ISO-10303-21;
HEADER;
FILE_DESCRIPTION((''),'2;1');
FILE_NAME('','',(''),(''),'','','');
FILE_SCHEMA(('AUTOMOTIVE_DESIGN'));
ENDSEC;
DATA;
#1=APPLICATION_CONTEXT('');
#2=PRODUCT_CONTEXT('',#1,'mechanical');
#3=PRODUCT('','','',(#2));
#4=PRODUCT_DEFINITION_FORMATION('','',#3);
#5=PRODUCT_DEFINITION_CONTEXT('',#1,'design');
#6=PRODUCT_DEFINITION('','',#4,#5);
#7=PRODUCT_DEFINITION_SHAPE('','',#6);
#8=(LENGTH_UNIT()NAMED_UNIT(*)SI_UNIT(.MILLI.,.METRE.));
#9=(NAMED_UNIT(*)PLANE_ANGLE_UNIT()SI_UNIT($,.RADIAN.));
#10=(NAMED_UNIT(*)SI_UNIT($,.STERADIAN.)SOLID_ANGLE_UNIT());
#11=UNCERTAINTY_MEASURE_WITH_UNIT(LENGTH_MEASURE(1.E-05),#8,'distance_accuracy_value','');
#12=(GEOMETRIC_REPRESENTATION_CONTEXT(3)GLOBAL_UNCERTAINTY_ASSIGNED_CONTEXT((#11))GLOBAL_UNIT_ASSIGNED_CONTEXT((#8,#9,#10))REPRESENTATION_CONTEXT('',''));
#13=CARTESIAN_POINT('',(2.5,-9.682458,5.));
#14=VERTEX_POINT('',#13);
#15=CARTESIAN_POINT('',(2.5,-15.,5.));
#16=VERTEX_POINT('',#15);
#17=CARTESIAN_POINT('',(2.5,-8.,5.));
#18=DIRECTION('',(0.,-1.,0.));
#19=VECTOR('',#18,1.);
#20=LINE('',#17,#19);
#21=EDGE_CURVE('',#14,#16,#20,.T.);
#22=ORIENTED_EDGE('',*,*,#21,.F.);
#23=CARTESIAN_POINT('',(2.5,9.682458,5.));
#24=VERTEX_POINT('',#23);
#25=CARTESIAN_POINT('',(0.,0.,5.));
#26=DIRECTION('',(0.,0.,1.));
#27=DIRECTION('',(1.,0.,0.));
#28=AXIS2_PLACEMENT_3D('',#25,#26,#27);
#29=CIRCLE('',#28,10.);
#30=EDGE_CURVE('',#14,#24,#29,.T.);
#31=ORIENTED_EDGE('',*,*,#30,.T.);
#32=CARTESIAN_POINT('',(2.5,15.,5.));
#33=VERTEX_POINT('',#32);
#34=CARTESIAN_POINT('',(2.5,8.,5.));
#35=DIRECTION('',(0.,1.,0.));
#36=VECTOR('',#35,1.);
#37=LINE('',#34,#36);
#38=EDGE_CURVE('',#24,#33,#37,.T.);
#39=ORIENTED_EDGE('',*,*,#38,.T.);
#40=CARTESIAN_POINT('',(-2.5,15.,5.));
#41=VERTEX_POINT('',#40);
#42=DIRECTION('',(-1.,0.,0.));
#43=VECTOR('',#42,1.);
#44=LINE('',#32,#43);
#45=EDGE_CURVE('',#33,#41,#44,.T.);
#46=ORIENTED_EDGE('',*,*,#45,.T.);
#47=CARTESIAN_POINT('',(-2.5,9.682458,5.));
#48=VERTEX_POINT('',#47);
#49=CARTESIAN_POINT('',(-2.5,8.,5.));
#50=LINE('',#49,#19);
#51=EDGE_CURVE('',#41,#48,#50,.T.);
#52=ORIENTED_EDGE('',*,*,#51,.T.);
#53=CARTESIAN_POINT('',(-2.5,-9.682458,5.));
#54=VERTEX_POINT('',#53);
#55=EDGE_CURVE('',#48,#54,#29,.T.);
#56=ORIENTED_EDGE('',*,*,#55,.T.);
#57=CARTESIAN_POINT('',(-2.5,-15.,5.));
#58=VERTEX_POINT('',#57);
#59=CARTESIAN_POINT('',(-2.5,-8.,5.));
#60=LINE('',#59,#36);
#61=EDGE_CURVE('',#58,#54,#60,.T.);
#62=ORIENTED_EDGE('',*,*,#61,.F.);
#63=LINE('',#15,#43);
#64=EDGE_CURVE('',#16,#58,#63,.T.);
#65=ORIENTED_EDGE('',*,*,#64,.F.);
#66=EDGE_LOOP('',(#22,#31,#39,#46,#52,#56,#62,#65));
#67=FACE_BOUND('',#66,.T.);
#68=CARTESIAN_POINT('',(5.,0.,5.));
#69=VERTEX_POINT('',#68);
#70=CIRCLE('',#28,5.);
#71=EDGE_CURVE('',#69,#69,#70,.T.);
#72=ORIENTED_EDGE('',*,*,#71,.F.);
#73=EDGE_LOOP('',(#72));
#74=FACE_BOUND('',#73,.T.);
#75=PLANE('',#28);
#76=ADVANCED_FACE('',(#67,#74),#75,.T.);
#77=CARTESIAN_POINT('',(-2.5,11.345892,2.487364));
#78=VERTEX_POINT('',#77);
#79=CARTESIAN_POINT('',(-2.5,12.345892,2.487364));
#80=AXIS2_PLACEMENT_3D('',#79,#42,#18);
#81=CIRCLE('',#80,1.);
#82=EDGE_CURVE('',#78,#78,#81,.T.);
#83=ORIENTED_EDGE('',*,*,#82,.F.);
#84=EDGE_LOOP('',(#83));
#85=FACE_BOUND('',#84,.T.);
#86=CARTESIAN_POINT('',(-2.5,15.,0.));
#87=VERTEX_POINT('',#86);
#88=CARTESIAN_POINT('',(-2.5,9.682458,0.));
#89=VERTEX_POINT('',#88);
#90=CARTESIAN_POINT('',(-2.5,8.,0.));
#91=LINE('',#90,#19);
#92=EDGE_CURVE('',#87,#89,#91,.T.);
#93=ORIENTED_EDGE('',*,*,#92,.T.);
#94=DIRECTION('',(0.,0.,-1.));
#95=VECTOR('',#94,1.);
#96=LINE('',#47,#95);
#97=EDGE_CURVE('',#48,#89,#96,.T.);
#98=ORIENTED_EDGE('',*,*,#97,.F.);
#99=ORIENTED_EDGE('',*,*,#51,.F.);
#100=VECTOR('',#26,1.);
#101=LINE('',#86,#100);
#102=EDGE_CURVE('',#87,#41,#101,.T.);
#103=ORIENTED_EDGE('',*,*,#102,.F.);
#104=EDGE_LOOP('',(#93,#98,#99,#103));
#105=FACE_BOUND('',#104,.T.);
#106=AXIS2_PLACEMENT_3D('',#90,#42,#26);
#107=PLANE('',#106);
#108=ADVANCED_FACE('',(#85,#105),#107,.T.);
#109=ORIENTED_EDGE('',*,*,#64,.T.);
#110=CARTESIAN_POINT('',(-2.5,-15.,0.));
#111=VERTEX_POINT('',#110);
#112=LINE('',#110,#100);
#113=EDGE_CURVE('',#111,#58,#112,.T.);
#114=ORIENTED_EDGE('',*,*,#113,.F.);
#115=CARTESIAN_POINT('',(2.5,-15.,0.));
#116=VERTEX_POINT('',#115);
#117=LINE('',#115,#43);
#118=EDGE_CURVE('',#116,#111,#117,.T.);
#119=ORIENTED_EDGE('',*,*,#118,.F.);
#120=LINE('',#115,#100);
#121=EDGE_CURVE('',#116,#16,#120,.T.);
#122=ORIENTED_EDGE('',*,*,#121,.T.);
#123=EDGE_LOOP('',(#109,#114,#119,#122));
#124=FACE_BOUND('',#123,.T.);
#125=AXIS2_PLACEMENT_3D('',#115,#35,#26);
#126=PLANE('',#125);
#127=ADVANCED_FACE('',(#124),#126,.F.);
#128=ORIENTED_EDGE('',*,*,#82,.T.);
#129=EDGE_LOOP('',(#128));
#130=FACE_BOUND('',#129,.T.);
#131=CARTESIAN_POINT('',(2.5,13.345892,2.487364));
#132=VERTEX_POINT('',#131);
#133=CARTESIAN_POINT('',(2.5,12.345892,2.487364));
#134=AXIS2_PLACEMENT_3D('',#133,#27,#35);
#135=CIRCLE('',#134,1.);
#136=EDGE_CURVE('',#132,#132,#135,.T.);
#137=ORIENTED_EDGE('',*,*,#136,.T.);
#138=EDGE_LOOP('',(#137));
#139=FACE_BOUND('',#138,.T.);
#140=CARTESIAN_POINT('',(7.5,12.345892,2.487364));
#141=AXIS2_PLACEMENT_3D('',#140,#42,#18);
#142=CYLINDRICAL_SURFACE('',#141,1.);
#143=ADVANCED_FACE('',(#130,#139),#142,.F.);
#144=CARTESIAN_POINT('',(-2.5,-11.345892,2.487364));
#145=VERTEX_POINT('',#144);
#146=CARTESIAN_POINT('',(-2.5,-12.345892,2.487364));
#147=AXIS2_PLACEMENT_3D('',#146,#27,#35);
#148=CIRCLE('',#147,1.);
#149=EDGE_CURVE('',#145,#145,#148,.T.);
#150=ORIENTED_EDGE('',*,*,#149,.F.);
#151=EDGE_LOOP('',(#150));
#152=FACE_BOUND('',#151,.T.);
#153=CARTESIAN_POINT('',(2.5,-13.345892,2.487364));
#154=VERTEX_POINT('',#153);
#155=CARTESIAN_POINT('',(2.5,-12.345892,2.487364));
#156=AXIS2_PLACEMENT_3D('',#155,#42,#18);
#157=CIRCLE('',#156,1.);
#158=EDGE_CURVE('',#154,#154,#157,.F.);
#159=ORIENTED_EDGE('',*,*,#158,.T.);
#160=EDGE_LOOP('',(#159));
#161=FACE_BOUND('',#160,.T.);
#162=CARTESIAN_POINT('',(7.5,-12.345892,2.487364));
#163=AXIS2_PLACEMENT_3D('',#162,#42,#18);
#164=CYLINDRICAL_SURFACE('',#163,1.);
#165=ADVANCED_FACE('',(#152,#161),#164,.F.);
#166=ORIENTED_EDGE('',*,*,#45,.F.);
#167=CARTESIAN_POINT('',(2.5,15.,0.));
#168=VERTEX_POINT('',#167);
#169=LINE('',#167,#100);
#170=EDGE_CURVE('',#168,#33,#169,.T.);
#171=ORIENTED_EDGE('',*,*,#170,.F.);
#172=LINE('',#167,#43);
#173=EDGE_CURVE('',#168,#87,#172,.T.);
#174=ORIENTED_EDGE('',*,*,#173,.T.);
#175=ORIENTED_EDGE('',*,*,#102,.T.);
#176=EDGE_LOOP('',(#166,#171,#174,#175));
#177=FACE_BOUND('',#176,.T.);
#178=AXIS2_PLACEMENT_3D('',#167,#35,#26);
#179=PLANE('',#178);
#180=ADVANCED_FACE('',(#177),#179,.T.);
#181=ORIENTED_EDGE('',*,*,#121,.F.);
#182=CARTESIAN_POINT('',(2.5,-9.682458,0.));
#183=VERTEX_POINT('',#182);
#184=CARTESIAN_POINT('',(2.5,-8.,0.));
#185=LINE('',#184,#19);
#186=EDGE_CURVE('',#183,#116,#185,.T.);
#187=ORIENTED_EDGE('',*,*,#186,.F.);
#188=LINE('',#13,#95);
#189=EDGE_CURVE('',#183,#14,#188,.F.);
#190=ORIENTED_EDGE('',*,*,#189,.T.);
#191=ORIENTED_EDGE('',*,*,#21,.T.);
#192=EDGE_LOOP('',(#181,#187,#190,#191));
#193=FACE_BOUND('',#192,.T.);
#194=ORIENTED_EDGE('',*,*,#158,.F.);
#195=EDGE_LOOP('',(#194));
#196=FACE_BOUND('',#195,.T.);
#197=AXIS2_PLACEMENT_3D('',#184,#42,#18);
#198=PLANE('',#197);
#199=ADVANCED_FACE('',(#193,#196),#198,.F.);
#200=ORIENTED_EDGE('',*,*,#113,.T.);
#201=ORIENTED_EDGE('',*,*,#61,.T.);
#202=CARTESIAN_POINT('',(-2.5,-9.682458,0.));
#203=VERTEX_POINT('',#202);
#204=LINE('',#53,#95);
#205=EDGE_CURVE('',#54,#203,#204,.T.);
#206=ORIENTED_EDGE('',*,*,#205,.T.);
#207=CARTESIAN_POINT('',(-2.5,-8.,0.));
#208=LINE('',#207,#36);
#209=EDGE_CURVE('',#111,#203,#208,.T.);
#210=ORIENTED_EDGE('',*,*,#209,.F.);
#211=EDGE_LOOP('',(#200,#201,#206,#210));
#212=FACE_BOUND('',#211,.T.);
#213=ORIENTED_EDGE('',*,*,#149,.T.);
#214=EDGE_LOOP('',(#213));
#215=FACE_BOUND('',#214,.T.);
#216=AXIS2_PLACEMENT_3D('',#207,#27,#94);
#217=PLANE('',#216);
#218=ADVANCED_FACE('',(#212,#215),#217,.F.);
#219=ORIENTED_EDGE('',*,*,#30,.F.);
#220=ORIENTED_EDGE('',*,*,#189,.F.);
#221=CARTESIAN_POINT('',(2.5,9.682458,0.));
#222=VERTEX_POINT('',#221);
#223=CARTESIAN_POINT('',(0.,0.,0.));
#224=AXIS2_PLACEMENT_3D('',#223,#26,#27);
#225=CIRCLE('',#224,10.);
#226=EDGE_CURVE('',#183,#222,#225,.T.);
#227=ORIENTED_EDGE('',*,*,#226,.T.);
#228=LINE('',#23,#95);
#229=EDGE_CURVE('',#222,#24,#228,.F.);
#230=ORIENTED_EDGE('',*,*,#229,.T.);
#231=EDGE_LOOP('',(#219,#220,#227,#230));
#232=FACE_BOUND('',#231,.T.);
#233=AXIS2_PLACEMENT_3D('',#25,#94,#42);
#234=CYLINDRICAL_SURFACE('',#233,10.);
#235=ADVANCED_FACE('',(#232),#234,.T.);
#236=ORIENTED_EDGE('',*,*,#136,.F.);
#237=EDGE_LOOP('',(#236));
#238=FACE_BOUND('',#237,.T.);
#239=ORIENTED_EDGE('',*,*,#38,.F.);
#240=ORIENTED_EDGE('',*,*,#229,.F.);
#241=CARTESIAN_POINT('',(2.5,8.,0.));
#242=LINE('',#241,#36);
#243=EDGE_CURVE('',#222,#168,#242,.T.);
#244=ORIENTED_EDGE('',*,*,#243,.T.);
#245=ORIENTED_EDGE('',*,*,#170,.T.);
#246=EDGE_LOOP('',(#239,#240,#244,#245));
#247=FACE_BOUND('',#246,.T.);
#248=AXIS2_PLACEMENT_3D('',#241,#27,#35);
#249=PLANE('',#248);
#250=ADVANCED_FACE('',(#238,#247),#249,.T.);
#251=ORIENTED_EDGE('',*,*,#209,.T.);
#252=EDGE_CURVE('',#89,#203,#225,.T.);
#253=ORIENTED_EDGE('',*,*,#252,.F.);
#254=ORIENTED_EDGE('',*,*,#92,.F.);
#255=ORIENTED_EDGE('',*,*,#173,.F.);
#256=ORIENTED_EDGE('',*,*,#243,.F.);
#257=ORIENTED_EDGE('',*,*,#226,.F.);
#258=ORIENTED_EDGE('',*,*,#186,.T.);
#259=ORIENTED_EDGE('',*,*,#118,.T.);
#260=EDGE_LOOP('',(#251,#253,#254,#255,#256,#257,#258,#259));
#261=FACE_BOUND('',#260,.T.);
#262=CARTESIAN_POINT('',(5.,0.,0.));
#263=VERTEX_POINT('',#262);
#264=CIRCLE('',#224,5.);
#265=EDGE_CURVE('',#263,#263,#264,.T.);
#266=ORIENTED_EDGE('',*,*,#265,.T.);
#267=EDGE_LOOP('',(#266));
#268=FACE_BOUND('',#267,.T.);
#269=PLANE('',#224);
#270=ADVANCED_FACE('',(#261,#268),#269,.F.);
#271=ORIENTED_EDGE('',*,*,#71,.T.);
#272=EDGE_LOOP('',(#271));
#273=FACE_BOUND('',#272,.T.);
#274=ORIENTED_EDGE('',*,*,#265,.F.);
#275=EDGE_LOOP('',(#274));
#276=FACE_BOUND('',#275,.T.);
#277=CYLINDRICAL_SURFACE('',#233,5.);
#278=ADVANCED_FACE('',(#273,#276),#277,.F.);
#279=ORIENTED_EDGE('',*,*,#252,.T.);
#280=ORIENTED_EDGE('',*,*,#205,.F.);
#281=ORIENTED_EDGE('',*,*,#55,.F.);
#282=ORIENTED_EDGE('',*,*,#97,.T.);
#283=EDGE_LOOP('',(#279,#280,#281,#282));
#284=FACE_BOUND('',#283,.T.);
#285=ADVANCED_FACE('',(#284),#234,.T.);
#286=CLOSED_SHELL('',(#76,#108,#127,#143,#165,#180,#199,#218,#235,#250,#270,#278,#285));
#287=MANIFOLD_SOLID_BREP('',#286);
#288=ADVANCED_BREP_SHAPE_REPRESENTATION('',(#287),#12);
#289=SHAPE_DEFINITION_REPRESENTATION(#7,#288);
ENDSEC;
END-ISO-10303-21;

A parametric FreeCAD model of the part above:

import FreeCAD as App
import Part
import Sketcher

V = App.Vector

doc = App.newDocument("Part")
body = doc.addObject("PartDesign::Body", "Body")

# Sketch on XY plane
sketch1 = body.newObject("Sketcher::SketchObject", "Sketch")
sketch1.AttachmentSupport = (doc.getObject("XY_Plane"), [""])
sketch1.MapMode = "FlatFace"
sketch1.addGeometry([
    Part.Circle(V(0, 0, 0), V(0, 0, 1), 10),
    Part.Circle(V(0, 0, 0), V(0, 0, 1), 5),
], False)
sketch1.addConstraint([
    Sketcher.Constraint("Coincident", 0, 3, -1, 1),
    Sketcher.Constraint("Coincident", 1, 3, -1, 1),
    Sketcher.Constraint("Diameter", 0, 20.0),
    Sketcher.Constraint("Diameter", 1, 10.0),
])
pad1 = body.newObject("PartDesign::Pad", "Pad")
pad1.Profile = sketch1
pad1.Length = 5

# Sketch on XY plane
sketch2 = body.newObject("Sketcher::SketchObject", "Sketch001")
sketch2.AttachmentSupport = (doc.getObject("XY_Plane"), [""])
sketch2.MapMode = "FlatFace"
sketch2.AttachmentOffset = App.Placement(V(0, 0, 5), App.Rotation())
sketch2.addGeometry([
    Part.LineSegment(V(-2, 15, 0), V(-2, 8, 0)),
    Part.LineSegment(V(-2, 8, 0), V(2, 8, 0)),
    Part.LineSegment(V(2, 8, 0), V(2, 15, 0)),
    Part.LineSegment(V(2, 15, 0), V(-2, 15, 0)),
], False)
sketch2.addConstraint([
    Sketcher.Constraint("Coincident", 0, 2, 1, 1),
    Sketcher.Constraint("Coincident", 1, 2, 2, 1),
    Sketcher.Constraint("Coincident", 2, 2, 3, 1),
    Sketcher.Constraint("Coincident", 3, 2, 0, 1),
    Sketcher.Constraint("Vertical", 0),
    Sketcher.Constraint("Horizontal", 1),
    Sketcher.Constraint("Vertical", 2),
    Sketcher.Constraint("Horizontal", 3),
    Sketcher.Constraint("DistanceX", 1, 1, 1, 2, 5.0),
    Sketcher.Constraint("DistanceY", 0, 2, 0, 1, 7.0),
    Sketcher.Constraint("DistanceY", -1, 1, 0, 2, 8.0),
    Sketcher.Constraint("DistanceX", 0, 2, -1, 1, 2.5),
])
pad2 = body.newObject("PartDesign::Pad", "Pad001")
pad2.Profile = sketch2
pad2.Length = 5
pad2.Reversed = True

# Sketch on YZ plane
sketch3 = body.newObject("Sketcher::SketchObject", "Sketch002")
sketch3.AttachmentSupport = (doc.getObject("YZ_Plane"), [""])
sketch3.MapMode = "FlatFace"
sketch3.AttachmentOffset = App.Placement(V(0, 0, -2.5), App.Rotation())
sketch3.addGeometry(Part.Circle(V(12.3, 2.5, 0), V(0, 0, 1), 1), False)
sketch3.addConstraint([
    Sketcher.Constraint("Diameter", 0, 2.0),
    Sketcher.Constraint("DistanceX", -1, 1, 0, 3, 12.345892),
    Sketcher.Constraint("DistanceY", -1, 1, 0, 3, 2.487364),
])
pocket1 = body.newObject("PartDesign::Pocket", "Pocket")
pocket1.Profile = sketch3
pocket1.Length = 10
pocket1.Reversed = True
doc.recompute()

mirrored = body.newObject("PartDesign::Mirrored", "Mirrored")
mirrored.Originals = [pad2, pocket1]
mirrored.MirrorPlane = (doc.getObject("XZ_Plane"), [""])
body.Tip = mirrored

doc.recompute()
